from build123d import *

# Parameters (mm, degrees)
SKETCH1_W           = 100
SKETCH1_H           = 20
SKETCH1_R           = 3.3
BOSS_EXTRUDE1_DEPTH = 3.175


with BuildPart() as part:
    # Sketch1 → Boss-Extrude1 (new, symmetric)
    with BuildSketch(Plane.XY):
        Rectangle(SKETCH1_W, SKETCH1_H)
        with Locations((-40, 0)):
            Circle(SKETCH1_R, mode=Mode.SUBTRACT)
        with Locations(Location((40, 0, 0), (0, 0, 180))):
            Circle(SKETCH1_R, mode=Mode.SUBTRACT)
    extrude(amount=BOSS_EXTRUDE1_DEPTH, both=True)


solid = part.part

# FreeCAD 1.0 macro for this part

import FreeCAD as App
import Part
import Sketcher


def add_polygon(sketch, points):
    """Adds a closed chain of lines whose ends are joined by coincident constraints."""
    first, n = sketch.GeometryCount, len(points)
    for a, b in zip(points, points[1:] + points[:1]):
        sketch.addGeometry(Part.LineSegment(App.Vector(*a, 0), App.Vector(*b, 0)), False)
    for i in range(n):
        sketch.addConstraint(Sketcher.Constraint("Coincident", first + i, 2, first + (i + 1) % n, 1))

doc = App.newDocument("Part")
params = doc.addObject("Spreadsheet::Sheet", "Params")
for row, (alias, value) in enumerate([
    ("sketch1_diameter", "6.6 mm"),
    ("sketch1_width", "100 mm"),
    ("sketch1_height", "20 mm"),
    ("pad1_length", "6.35 mm"),
], start=1):
    params.set(f"A{row}", alias)
    params.set(f"B{row}", "=" + value)
    params.setAlias(f"B{row}", alias)

body = doc.addObject("PartDesign::Body", "Body")

# Sketch on XY plane
sketch1 = doc.addObject("Sketcher::SketchObject", "Sketch")
body.addObject(sketch1)
sketch1.AttachmentSupport = (doc.XY_Plane, [""])
sketch1.MapMode = "FlatFace"
add_polygon(sketch1, [(-50, 10), (-50, -10), (50, -10), (50, 10)])  # lines 0-3
sketch1.addGeometry(Part.Circle(App.Vector(-40, 0, 0), App.Vector(0, 0, 1), 3.3), False)  # 4
sketch1.addGeometry(Part.Circle(App.Vector(40, 0, 0), App.Vector(0, 0, 1), 3.3), False)  # 5
sketch1.addConstraint([
    Sketcher.Constraint("Vertical", 0),
    Sketcher.Constraint("Horizontal", 1),
    Sketcher.Constraint("Vertical", 2),
    Sketcher.Constraint("Horizontal", 3),
    Sketcher.Constraint("Equal", 4, 5),
    Sketcher.Constraint("Symmetric", 4, 3, 5, 3, -1, 1),
    Sketcher.Constraint("Symmetric", 0, 2, 2, 2, -1, 1),
    Sketcher.Constraint("PointOnObject", 4, 3, -1),
    Sketcher.Constraint("Diameter", 4, 6.6),
    Sketcher.Constraint("DistanceX", 1, 1, 1, 2, 100.0),
    Sketcher.Constraint("DistanceY", 0, 2, 0, 1, 20.0),
    Sketcher.Constraint("DistanceX", 4, 3, -1, 1, 40.0),
])
sketch1.setExpression("Constraints[12]", "Params.sketch1_diameter")
sketch1.setExpression("Constraints[13]", "Params.sketch1_width")
sketch1.setExpression("Constraints[14]", "Params.sketch1_height")
pad1 = doc.addObject("PartDesign::Pad", "Pad")
body.addObject(pad1)
pad1.Profile = sketch1
pad1.setExpression("Length", "Params.pad1_length")
pad1.Midplane = True

doc.recompute()
